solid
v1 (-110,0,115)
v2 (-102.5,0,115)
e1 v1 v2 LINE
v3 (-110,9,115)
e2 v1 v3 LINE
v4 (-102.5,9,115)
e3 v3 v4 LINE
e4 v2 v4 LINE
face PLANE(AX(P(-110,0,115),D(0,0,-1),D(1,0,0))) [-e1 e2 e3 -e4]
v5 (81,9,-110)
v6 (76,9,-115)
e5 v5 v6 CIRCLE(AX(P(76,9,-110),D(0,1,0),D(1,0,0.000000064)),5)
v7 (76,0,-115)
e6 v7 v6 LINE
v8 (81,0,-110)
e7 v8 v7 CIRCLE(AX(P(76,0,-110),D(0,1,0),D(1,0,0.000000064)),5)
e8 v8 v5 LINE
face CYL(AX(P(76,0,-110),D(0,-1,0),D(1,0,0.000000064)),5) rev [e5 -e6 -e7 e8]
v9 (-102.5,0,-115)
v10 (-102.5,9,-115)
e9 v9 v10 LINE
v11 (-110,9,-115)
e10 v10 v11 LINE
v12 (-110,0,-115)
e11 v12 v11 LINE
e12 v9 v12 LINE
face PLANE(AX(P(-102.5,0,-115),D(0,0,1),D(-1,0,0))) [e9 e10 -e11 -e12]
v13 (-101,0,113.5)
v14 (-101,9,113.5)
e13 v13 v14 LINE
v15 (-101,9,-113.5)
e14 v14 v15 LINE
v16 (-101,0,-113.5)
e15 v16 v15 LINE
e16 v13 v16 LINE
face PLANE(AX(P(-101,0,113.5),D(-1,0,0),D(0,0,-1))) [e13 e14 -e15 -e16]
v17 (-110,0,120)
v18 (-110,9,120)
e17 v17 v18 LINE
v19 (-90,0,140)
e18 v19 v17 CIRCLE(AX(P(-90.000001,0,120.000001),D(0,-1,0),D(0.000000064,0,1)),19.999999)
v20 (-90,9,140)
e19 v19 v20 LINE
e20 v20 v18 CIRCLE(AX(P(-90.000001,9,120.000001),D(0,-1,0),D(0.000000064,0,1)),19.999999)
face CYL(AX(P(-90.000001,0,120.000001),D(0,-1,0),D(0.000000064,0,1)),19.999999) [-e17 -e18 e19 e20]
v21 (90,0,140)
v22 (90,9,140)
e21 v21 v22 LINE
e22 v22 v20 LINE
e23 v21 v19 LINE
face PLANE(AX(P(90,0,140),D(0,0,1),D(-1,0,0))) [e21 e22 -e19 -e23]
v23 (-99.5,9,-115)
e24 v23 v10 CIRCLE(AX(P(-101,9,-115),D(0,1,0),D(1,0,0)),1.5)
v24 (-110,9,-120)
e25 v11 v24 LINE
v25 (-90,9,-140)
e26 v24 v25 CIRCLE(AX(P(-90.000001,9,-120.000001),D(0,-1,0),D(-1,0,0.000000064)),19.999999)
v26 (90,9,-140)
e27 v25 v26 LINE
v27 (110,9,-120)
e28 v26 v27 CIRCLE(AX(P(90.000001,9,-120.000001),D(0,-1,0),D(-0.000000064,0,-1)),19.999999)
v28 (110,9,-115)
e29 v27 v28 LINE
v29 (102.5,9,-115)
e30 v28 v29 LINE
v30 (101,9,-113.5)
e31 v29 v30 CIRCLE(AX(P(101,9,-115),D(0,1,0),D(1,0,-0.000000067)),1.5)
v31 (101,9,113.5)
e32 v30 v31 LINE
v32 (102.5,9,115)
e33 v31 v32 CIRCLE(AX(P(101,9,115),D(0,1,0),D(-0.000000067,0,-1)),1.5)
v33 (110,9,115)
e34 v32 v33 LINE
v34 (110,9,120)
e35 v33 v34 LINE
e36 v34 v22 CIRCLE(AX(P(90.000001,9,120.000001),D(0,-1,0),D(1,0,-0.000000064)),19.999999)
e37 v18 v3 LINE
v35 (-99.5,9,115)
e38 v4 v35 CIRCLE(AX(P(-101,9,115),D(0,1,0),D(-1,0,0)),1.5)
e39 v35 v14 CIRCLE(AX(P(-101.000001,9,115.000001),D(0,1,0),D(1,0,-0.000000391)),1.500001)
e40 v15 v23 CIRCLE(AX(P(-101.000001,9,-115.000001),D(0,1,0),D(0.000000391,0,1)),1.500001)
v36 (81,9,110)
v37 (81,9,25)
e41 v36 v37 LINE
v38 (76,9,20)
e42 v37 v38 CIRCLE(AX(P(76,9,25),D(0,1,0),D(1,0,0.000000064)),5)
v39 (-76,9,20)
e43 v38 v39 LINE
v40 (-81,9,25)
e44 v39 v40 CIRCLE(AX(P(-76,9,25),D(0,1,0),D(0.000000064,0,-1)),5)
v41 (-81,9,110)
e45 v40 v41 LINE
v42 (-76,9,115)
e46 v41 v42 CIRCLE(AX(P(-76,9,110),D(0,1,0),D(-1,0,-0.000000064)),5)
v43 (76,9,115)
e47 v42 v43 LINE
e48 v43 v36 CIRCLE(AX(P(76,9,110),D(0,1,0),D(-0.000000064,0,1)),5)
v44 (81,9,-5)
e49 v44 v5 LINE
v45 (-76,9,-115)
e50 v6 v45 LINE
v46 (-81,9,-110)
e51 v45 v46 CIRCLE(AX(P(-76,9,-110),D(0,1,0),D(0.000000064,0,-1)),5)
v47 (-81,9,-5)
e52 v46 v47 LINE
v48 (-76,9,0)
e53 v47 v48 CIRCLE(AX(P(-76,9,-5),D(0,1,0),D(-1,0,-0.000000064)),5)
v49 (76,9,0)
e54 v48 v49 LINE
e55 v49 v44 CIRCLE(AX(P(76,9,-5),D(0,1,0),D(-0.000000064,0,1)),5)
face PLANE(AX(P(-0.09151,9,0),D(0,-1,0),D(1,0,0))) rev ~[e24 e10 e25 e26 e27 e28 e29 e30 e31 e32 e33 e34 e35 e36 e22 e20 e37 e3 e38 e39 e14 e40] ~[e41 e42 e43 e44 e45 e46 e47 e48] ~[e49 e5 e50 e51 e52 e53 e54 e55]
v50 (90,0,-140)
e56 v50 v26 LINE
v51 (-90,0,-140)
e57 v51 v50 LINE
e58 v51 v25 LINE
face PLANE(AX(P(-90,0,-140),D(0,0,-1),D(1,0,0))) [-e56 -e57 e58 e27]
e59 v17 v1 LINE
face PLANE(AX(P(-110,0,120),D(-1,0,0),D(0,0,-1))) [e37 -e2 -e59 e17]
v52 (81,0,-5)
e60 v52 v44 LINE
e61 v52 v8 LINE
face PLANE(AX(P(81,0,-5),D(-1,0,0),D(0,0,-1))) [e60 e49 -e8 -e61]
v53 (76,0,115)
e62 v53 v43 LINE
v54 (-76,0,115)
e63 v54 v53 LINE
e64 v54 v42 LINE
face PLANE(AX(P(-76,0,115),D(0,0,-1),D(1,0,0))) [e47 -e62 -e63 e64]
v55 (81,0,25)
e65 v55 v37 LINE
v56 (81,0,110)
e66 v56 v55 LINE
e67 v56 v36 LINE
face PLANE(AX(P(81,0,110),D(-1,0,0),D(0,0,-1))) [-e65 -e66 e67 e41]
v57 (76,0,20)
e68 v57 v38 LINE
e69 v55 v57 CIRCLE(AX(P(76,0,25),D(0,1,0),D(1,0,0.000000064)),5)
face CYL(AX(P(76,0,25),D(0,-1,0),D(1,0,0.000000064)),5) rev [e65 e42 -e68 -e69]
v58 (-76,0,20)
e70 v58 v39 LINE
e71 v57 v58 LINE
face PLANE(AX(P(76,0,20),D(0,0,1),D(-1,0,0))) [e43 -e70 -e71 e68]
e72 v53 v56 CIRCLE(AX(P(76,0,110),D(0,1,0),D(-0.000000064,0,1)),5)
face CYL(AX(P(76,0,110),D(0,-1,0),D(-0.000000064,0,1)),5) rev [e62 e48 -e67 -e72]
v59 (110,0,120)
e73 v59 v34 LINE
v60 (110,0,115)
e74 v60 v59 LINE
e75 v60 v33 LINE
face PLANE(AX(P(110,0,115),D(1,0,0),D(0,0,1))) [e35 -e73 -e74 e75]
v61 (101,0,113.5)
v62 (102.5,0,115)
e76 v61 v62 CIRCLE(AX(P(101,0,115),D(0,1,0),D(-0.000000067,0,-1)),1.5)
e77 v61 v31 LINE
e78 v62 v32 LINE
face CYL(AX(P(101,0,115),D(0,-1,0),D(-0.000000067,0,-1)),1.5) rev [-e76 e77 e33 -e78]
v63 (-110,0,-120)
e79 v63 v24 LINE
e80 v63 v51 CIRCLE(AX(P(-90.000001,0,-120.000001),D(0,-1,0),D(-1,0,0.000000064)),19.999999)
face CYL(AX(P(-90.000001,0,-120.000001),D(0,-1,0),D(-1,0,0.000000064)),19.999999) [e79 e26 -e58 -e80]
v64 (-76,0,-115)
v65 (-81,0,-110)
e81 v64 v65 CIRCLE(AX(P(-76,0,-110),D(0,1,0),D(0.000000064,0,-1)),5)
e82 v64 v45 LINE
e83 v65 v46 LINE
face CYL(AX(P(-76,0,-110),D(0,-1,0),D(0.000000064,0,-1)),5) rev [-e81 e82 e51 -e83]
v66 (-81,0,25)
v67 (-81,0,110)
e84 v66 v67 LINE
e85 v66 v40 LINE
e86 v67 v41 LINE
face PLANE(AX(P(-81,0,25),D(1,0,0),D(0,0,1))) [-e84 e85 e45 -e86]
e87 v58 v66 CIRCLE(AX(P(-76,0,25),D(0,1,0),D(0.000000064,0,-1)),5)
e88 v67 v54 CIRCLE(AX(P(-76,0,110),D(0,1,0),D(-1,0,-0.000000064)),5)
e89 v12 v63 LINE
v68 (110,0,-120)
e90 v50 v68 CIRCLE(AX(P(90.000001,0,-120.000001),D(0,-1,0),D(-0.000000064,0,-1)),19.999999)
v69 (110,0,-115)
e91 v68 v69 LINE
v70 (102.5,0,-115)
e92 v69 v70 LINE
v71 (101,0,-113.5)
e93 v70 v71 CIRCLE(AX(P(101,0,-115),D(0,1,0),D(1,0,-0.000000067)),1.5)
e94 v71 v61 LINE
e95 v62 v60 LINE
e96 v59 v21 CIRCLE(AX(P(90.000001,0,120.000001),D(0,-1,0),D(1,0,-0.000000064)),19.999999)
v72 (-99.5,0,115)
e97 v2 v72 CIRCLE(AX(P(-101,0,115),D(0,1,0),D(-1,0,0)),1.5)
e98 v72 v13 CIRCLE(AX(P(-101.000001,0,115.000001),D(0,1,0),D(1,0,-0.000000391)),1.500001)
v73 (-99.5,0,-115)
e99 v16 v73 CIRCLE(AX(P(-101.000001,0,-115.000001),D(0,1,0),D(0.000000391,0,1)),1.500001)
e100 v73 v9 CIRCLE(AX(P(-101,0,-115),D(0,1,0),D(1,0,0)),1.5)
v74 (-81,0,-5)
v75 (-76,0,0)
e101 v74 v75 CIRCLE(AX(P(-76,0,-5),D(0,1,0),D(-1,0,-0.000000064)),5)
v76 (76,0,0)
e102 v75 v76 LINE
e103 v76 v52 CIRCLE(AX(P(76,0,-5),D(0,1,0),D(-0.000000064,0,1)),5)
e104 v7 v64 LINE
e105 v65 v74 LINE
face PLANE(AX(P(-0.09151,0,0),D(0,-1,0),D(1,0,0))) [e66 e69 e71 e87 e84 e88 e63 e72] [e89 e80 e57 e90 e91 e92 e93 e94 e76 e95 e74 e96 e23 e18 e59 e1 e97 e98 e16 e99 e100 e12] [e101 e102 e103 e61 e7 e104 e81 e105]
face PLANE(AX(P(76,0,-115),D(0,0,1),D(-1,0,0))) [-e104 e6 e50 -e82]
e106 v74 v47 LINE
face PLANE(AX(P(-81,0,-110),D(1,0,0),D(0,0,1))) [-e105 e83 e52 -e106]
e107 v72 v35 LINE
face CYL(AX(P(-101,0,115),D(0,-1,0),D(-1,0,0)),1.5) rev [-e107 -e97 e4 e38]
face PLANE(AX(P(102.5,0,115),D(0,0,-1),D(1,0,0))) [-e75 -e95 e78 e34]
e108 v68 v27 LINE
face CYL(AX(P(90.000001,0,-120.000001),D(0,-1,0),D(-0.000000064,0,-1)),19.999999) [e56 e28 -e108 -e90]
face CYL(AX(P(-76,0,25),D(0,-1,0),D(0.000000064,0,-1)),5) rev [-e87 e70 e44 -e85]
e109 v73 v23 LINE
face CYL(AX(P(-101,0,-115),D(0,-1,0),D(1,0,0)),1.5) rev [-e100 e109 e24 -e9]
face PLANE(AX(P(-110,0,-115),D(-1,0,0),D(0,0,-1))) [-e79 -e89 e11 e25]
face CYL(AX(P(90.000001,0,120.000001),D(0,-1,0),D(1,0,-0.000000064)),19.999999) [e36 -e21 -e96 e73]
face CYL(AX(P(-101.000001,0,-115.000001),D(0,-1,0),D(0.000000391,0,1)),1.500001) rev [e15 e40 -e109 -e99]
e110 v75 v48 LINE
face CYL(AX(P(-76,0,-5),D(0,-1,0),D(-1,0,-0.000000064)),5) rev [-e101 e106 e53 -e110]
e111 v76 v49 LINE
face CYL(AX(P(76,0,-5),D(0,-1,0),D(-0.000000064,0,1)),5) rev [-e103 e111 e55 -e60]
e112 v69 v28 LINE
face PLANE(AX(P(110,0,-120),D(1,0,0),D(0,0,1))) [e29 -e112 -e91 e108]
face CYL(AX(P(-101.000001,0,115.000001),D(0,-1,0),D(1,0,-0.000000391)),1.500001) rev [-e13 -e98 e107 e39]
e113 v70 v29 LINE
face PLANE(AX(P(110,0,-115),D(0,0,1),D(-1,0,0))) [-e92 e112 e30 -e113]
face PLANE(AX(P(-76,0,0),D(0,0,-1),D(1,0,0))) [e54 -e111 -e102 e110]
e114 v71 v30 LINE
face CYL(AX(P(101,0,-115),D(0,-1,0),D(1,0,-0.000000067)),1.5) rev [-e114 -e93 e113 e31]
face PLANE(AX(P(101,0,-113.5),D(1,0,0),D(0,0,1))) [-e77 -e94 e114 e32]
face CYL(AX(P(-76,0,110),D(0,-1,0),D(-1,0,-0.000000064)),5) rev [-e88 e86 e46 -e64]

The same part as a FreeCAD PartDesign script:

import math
import FreeCAD as App
import Part
import Sketcher
Q = App.Units.Quantity

doc = App.newDocument("Part")
body = doc.addObject("PartDesign::Body", "Body")

# Sketch on XZ plane
sketch1 = doc.addObject("Sketcher::SketchObject", "Sketch")
body.addObject(sketch1)
sketch1.AttachmentSupport = (doc.XZ_Plane, [""])
sketch1.MapMode = "FlatFace"
sketch1.addGeometry([
    Part.LineSegment(App.Vector(90, 140, 0), App.Vector(-90, 140, 0)),  # 0
    Part.ArcOfCircle(Part.Circle(App.Vector(-90.000001, 120.000001, 0), App.Vector(0, 0, 1), 19.999999), math.radians(89.999996), math.radians(180.000004)),  # 1
    Part.LineSegment(App.Vector(-110, 120, 0), App.Vector(-110, 115, 0)),  # 2
    Part.LineSegment(App.Vector(-110, 115, 0), App.Vector(-102.5, 115, 0)),  # 3
    Part.ArcOfCircle(Part.Circle(App.Vector(-101, 115, 0), App.Vector(0, 0, 1), 1.5), math.radians(0), math.radians(180)),  # 4
    Part.ArcOfCircle(Part.Circle(App.Vector(-101.000001, 115.000001, 0), App.Vector(0, 0, 1), 1.500001), math.radians(-89.999978), math.radians(-0.000022)),  # 5
    Part.LineSegment(App.Vector(-101, 113.5, 0), App.Vector(-101, -113.5, 0)),  # 6
    Part.ArcOfCircle(Part.Circle(App.Vector(-101.000001, -115.000001, 0), App.Vector(0, 0, 1), 1.500001), math.radians(0.000022), math.radians(89.999978)),  # 7
    Part.ArcOfCircle(Part.Circle(App.Vector(-101, -115, 0), App.Vector(0, 0, 1), 1.5), math.radians(180), math.radians(360)),  # 8
    Part.LineSegment(App.Vector(-102.5, -115, 0), App.Vector(-110, -115, 0)),  # 9
    Part.LineSegment(App.Vector(-110, -115, 0), App.Vector(-110, -120, 0)),  # 10
    Part.ArcOfCircle(Part.Circle(App.Vector(-90.000001, -120.000001, 0), App.Vector(0, 0, 1), 19.999999), math.radians(179.999996), math.radians(270.000004)),  # 11
    Part.LineSegment(App.Vector(-90, -140, 0), App.Vector(90, -140, 0)),  # 12
    Part.ArcOfCircle(Part.Circle(App.Vector(90.000001, -120.000001, 0), App.Vector(0, 0, 1), 19.999999), math.radians(-90.000004), math.radians(0.000004)),  # 13
    Part.LineSegment(App.Vector(110, -120, 0), App.Vector(110, -115, 0)),  # 14
    Part.LineSegment(App.Vector(110, -115, 0), App.Vector(102.5, -115, 0)),  # 15
    Part.ArcOfCircle(Part.Circle(App.Vector(101, -115, 0), App.Vector(0, 0, 1), 1.5), math.radians(90.000004), math.radians(359.999996)),  # 16
    Part.LineSegment(App.Vector(101, -113.5, 0), App.Vector(101, 113.5, 0)),  # 17
    Part.ArcOfCircle(Part.Circle(App.Vector(101, 115, 0), App.Vector(0, 0, 1), 1.5), math.radians(0.000004), math.radians(269.999996)),  # 18
    Part.LineSegment(App.Vector(102.5, 115, 0), App.Vector(110, 115, 0)),  # 19
    Part.LineSegment(App.Vector(110, 115, 0), App.Vector(110, 120, 0)),  # 20
    Part.ArcOfCircle(Part.Circle(App.Vector(90.000001, 120.000001, 0), App.Vector(0, 0, 1), 19.999999), math.radians(-0.000004), math.radians(90.000004)),  # 21
    Part.ArcOfCircle(Part.Circle(App.Vector(-76, -110, 0), App.Vector(0, 0, 1), 5), math.radians(179.999996), math.radians(270.000004)),  # 22
    Part.LineSegment(App.Vector(-81, -110, 0), App.Vector(-81, -5, 0)),  # 23
    Part.ArcOfCircle(Part.Circle(App.Vector(-76, -5, 0), App.Vector(0, 0, 1), 5), math.radians(89.999996), math.radians(180.000004)),  # 24
    Part.LineSegment(App.Vector(-76, 0, 0), App.Vector(76, 0, 0)),  # 25
    Part.ArcOfCircle(Part.Circle(App.Vector(76, -5, 0), App.Vector(0, 0, 1), 5), math.radians(-0.000004), math.radians(90.000004)),  # 26
    Part.LineSegment(App.Vector(81, -5, 0), App.Vector(81, -110, 0)),  # 27
    Part.ArcOfCircle(Part.Circle(App.Vector(76, -110, 0), App.Vector(0, 0, 1), 5), math.radians(-90.000004), math.radians(0.000004)),  # 28
    Part.LineSegment(App.Vector(76, -115, 0), App.Vector(-76, -115, 0)),  # 29
    Part.ArcOfCircle(Part.Circle(App.Vector(76, 25, 0), App.Vector(0, 0, 1), 5), math.radians(-90.000004), math.radians(0.000004)),  # 30
    Part.LineSegment(App.Vector(76, 20, 0), App.Vector(-76, 20, 0)),  # 31
    Part.ArcOfCircle(Part.Circle(App.Vector(-76, 25, 0), App.Vector(0, 0, 1), 5), math.radians(179.999996), math.radians(270.000004)),  # 32
    Part.LineSegment(App.Vector(-81, 25, 0), App.Vector(-81, 110, 0)),  # 33
    Part.ArcOfCircle(Part.Circle(App.Vector(-76, 110, 0), App.Vector(0, 0, 1), 5), math.radians(89.999996), math.radians(180.000004)),  # 34
    Part.LineSegment(App.Vector(-76, 115, 0), App.Vector(76, 115, 0)),  # 35
    Part.ArcOfCircle(Part.Circle(App.Vector(76, 110, 0), App.Vector(0, 0, 1), 5), math.radians(-0.000004), math.radians(90.000004)),  # 36
    Part.LineSegment(App.Vector(81, 110, 0), App.Vector(81, 25, 0)),  # 37
], False)
sketch1.addConstraint([
    Sketcher.Constraint("Tangent", 0, 2, 1, 1),
    Sketcher.Constraint("Tangent", 1, 2, 2, 1),
    Sketcher.Constraint("Coincident", 2, 2, 3, 1),
    Sketcher.Constraint("Coincident", 3, 2, 4, 2),
    Sketcher.Constraint("Tangent", 4, 1, 5, 2),
    Sketcher.Constraint("Coincident", 5, 1, 6, 1),
    Sketcher.Constraint("Coincident", 6, 2, 7, 2),
    Sketcher.Constraint("Tangent", 7, 1, 8, 2),
    Sketcher.Constraint("Coincident", 8, 1, 9, 1),
    Sketcher.Constraint("Coincident", 9, 2, 10, 1),
    Sketcher.Constraint("Tangent", 10, 2, 11, 1),
    Sketcher.Constraint("Tangent", 11, 2, 12, 1),
    Sketcher.Constraint("Tangent", 12, 2, 13, 1),
    Sketcher.Constraint("Tangent", 13, 2, 14, 1),
    Sketcher.Constraint("Coincident", 14, 2, 15, 1),
    Sketcher.Constraint("Coincident", 15, 2, 16, 2),
    Sketcher.Constraint("Coincident", 16, 1, 17, 1),
    Sketcher.Constraint("Coincident", 17, 2, 18, 2),
    Sketcher.Constraint("Coincident", 18, 1, 19, 1),
    Sketcher.Constraint("Coincident", 19, 2, 20, 1),
    Sketcher.Constraint("Tangent", 20, 2, 21, 1),
    Sketcher.Constraint("Tangent", 21, 2, 0, 1),
    Sketcher.Constraint("Tangent", 22, 1, 23, 1),
    Sketcher.Constraint("Tangent", 23, 2, 24, 2),
    Sketcher.Constraint("Tangent", 24, 1, 25, 1),
    Sketcher.Constraint("Tangent", 25, 2, 26, 2),
    Sketcher.Constraint("Tangent", 26, 1, 27, 1),
    Sketcher.Constraint("Tangent", 27, 2, 28, 2),
    Sketcher.Constraint("Tangent", 28, 1, 29, 1),
    Sketcher.Constraint("Tangent", 29, 2, 22, 2),
    Sketcher.Constraint("Tangent", 30, 1, 31, 1),
    Sketcher.Constraint("Tangent", 31, 2, 32, 2),
    Sketcher.Constraint("Tangent", 32, 1, 33, 1),
    Sketcher.Constraint("Tangent", 33, 2, 34, 2),
    Sketcher.Constraint("Tangent", 34, 1, 35, 1),
    Sketcher.Constraint("Tangent", 35, 2, 36, 2),
    Sketcher.Constraint("Tangent", 36, 1, 37, 1),
    Sketcher.Constraint("Tangent", 37, 2, 30, 2),
    Sketcher.Constraint("Horizontal", 0),
    Sketcher.Constraint("Vertical", 2),
    Sketcher.Constraint("Horizontal", 3),
    Sketcher.Constraint("Vertical", 6),
    Sketcher.Constraint("Horizontal", 9),
    Sketcher.Constraint("Vertical", 10),
    Sketcher.Constraint("Horizontal", 12),
    Sketcher.Constraint("Vertical", 14),
    Sketcher.Constraint("Horizontal", 15),
    Sketcher.Constraint("Vertical", 17),
    Sketcher.Constraint("Horizontal", 19),
    Sketcher.Constraint("Vertical", 20),
    Sketcher.Constraint("Vertical", 23),
    Sketcher.Constraint("Horizontal", 25),
    Sketcher.Constraint("Vertical", 27),
    Sketcher.Constraint("Horizontal", 29),
    Sketcher.Constraint("Horizontal", 31),
    Sketcher.Constraint("Vertical", 33),
    Sketcher.Constraint("Horizontal", 35),
    Sketcher.Constraint("Vertical", 37),
    Sketcher.Constraint("Equal", 4, 5),
    Sketcher.Constraint("Equal", 5, 7),
    Sketcher.Constraint("Equal", 7, 8),
    Sketcher.Constraint("Equal", 1, 11),
    Sketcher.Constraint("Equal", 11, 13),
    Sketcher.Constraint("Equal", 8, 16),
    Sketcher.Constraint("Equal", 16, 18),
    Sketcher.Constraint("Equal", 13, 21),
    Sketcher.Constraint("Equal", 22, 24),
    Sketcher.Constraint("Equal", 24, 26),
    Sketcher.Constraint("Equal", 26, 28),
    Sketcher.Constraint("Equal", 28, 30),
    Sketcher.Constraint("Equal", 30, 32),
    Sketcher.Constraint("Equal", 32, 34),
    Sketcher.Constraint("Equal", 34, 36),
    Sketcher.Constraint("Symmetric", 1, 3, 13, 3, -1, 1),
    Sketcher.Constraint("Symmetric", 4, 3, 16, 3, -1, 1),
    Sketcher.Constraint("Symmetric", 7, 3, 18, 3, -1, 1),
    Sketcher.Constraint("Symmetric", 28, 3, 34, 3, -1, 1),
    Sketcher.Constraint("Symmetric", 9, 2, 19, 2, -1, 1),
    Sketcher.Constraint("Symmetric", 24, 1, 25, 2, -1, 1),
    Sketcher.Constraint("Symmetric", 7, 3, 16, 3, -2),
    Sketcher.Constraint("Symmetric", 9, 2, 14, 2, -2),
    Sketcher.Constraint("Horizontal", 18, 3, 2, 2),
    Sketcher.Constraint("Horizontal", 3, 2, 4, 1),
    Sketcher.Constraint("Horizontal", 16, 3, 7, 1),
    Sketcher.Constraint("Horizontal", 7, 1, 8, 1),
    Sketcher.Constraint("Horizontal", 15, 2, 28, 1),
    Sketcher.Constraint("Vertical", 28, 3, 30, 3),
    Sketcher.Constraint("Vertical", 8, 3, 5, 1),
    Sketcher.Constraint("Vertical", 18, 3, 16, 1),
    Sketcher.Constraint("Radius", 1, Q("19.999999 mm")),
    Sketcher.Constraint("Radius", 22, Q("5 mm")),
    Sketcher.Constraint("Radius", 4, Q("1.5 mm")),
    Sketcher.Constraint("DistanceX", 0, 2, 0, 1, Q("180 mm")),
    Sketcher.Constraint("DistanceX", 25, 1, 25, 2, Q("152 mm")),
    Sketcher.Constraint("DistanceY", 2, 2, 2, 1, Q("5 mm")),
    Sketcher.Constraint("DistanceY", 6, 2, 6, 1, Q("227 mm")),
    Sketcher.Constraint("DistanceY", 33, 1, 33, 2, Q("85 mm")),
    Sketcher.Constraint("DistanceX", 3, 1, 3, 2, Q("7.5 mm")),
])
pad1 = doc.addObject("PartDesign::Pad", "Pad")
body.addObject(pad1)
pad1.Profile = sketch1
pad1.Length = 9
pad1.Reversed = True

doc.recompute()
